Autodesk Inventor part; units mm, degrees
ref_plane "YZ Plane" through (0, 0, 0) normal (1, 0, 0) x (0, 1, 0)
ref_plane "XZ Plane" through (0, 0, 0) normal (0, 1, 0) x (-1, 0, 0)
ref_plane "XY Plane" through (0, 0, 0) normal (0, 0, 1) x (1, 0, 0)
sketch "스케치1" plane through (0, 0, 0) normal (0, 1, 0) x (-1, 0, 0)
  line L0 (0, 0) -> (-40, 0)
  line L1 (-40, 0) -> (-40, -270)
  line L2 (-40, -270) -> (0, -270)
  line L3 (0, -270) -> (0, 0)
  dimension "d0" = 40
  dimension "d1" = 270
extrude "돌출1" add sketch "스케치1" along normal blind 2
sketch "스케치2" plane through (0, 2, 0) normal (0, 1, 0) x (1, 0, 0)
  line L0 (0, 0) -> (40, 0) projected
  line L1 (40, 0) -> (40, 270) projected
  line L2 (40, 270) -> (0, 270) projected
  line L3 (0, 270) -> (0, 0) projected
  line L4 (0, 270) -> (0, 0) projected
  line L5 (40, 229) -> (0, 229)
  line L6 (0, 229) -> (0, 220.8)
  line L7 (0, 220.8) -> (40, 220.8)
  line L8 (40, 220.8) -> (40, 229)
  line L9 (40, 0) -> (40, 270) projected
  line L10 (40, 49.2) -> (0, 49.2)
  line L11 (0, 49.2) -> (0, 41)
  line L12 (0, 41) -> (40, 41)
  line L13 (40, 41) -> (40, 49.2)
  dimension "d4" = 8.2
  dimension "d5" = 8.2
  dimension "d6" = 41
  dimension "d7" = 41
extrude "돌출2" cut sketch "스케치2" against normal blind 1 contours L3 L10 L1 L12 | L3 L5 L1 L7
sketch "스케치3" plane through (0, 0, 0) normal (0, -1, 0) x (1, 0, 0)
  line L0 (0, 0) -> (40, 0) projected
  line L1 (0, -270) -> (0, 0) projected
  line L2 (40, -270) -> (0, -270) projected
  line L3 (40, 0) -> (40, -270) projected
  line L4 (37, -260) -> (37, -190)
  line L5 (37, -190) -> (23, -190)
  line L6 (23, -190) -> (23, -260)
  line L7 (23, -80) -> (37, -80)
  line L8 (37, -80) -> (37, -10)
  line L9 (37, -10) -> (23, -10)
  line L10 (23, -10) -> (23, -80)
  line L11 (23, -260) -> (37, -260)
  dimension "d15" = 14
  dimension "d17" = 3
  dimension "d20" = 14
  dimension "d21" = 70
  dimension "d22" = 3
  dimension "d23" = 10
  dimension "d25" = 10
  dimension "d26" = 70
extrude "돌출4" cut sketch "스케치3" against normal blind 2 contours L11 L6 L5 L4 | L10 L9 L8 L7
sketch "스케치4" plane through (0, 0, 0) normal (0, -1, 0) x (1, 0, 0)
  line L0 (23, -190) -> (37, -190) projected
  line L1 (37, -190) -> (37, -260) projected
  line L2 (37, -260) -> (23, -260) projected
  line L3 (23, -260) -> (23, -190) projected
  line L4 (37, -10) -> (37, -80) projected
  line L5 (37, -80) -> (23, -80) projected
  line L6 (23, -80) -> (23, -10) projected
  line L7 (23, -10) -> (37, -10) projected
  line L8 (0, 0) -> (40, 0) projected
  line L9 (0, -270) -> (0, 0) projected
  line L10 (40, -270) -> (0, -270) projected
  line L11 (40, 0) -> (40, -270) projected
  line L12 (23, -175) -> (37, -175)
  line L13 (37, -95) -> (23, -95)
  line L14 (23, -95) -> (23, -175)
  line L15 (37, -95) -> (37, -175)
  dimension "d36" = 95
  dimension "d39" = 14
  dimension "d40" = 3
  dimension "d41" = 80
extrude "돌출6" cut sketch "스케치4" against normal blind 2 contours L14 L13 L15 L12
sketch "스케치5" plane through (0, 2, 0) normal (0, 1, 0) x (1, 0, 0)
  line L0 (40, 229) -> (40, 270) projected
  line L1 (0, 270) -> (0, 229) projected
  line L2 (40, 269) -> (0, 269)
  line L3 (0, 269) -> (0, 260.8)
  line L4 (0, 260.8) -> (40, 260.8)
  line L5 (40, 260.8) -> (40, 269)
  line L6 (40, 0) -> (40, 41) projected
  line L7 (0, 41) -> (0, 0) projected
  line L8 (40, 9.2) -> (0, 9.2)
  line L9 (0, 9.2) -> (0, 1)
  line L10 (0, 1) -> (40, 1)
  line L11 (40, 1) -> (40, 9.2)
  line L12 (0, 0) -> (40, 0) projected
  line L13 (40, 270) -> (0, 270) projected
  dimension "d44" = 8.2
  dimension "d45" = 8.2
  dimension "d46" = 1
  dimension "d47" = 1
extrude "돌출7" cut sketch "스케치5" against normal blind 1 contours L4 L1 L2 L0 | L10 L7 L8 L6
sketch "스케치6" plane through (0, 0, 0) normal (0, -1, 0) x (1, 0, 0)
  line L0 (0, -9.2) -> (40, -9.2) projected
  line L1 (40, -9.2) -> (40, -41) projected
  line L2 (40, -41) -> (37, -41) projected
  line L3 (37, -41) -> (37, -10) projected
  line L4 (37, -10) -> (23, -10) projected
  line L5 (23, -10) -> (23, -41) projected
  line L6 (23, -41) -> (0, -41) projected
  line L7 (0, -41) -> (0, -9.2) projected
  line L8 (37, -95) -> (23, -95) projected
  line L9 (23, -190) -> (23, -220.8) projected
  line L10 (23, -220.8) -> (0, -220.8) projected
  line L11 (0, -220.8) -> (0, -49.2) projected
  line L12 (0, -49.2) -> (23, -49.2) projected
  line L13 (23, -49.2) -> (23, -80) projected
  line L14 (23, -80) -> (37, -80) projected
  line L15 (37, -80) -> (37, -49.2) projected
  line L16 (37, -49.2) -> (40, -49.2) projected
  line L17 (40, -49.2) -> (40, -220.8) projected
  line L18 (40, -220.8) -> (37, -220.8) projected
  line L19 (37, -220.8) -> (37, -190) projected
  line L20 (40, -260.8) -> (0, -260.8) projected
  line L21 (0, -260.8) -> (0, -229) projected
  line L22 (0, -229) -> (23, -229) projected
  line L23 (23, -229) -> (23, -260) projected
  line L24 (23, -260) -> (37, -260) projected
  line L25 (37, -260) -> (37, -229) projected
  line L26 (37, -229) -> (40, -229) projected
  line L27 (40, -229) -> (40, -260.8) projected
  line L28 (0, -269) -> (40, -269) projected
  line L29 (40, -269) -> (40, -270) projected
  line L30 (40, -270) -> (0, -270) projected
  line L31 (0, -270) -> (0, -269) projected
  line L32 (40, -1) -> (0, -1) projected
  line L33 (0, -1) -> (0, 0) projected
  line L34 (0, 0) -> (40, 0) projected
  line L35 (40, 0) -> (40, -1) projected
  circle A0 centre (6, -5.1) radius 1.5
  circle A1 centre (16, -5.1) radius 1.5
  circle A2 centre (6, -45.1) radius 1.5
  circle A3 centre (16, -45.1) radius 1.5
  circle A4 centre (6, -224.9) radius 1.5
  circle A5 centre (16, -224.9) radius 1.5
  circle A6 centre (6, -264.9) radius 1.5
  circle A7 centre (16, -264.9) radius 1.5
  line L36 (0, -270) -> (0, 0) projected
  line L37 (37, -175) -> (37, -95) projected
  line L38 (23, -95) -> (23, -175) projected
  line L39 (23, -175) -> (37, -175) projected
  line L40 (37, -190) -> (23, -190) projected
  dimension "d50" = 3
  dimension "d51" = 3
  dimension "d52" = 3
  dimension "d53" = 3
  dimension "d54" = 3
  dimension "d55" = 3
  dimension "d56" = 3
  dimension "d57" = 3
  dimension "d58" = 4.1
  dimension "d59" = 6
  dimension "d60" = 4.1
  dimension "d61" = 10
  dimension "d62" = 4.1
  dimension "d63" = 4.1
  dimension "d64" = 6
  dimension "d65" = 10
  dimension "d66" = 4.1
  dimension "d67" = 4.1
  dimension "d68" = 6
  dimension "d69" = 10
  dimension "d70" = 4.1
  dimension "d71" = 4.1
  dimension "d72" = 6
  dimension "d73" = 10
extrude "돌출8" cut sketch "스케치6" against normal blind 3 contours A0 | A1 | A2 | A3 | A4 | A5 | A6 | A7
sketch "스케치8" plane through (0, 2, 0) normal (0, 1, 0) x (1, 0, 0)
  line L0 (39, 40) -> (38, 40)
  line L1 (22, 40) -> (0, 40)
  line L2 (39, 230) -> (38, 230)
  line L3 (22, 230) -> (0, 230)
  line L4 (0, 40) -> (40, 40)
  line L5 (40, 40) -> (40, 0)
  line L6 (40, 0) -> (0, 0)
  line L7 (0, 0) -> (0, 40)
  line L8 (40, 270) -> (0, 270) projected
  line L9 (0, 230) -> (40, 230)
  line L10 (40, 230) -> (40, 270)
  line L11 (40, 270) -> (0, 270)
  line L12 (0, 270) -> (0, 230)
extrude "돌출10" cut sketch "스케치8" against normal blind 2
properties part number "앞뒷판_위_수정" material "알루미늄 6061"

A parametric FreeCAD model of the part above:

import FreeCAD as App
import Part
import Sketcher

V = App.Vector
Q = App.Units.Quantity

doc = App.newDocument("Part")
body = doc.addObject("PartDesign::Body", "Body")

# Sketch on XZ plane
sketch1 = body.newObject("Sketcher::SketchObject", "Sketch")
sketch1.AttachmentSupport = (doc.getObject("XZ_Plane"), [""])
sketch1.MapMode = "FlatFace"
sketch1.addGeometry([
    Part.LineSegment(V(0, -270, 0), V(0, 0, 0)),
    Part.LineSegment(V(0, 0, 0), V(40, 0, 0)),
    Part.LineSegment(V(40, 0, 0), V(40, -270, 0)),
    Part.LineSegment(V(40, -270, 0), V(0, -270, 0)),
], False)
sketch1.addConstraint([
    Sketcher.Constraint("Coincident", 0, 2, 1, 1),
    Sketcher.Constraint("Coincident", 1, 2, 2, 1),
    Sketcher.Constraint("Coincident", 2, 2, 3, 1),
    Sketcher.Constraint("Coincident", 3, 2, 0, 1),
    Sketcher.Constraint("Vertical", 0),
    Sketcher.Constraint("Horizontal", 1),
    Sketcher.Constraint("Vertical", 2),
    Sketcher.Constraint("Horizontal", 3),
    Sketcher.Constraint("Coincident", 0, 2, -1, 1),
    Sketcher.Constraint("DistanceX", 1, 1, 1, 2, Q("40 mm")),
    Sketcher.Constraint("DistanceY", 0, 1, 0, 2, Q("270 mm")),
])
pad1 = body.newObject("PartDesign::Pad", "Pad")
pad1.Profile = sketch1
pad1.Length = 2
pad1.Reversed = True

# Sketch on XZ plane
sketch2 = body.newObject("Sketcher::SketchObject", "Sketch001")
sketch2.AttachmentSupport = (doc.getObject("XZ_Plane"), [""])
sketch2.MapMode = "FlatFace"
sketch2.AttachmentOffset = App.Placement(V(0, 0, -2), App.Rotation())
sketch2.addGeometry([
    Part.LineSegment(V(0, -49.2, 0), V(0, -41, 0)),  # 0
    Part.LineSegment(V(0, -41, 0), V(40, -41, 0)),  # 1
    Part.LineSegment(V(40, -41, 0), V(40, -49.2, 0)),  # 2
    Part.LineSegment(V(40, -49.2, 0), V(0, -49.2, 0)),  # 3
    Part.LineSegment(V(0, -229, 0), V(0, -220.8, 0)),  # 4
    Part.LineSegment(V(0, -220.8, 0), V(40, -220.8, 0)),  # 5
    Part.LineSegment(V(40, -220.8, 0), V(40, -229, 0)),  # 6
    Part.LineSegment(V(40, -229, 0), V(0, -229, 0)),  # 7
], False)
sketch2.addConstraint([
    Sketcher.Constraint("Coincident", 0, 2, 1, 1),
    Sketcher.Constraint("Coincident", 1, 2, 2, 1),
    Sketcher.Constraint("Coincident", 2, 2, 3, 1),
    Sketcher.Constraint("Coincident", 3, 2, 0, 1),
    Sketcher.Constraint("Coincident", 4, 2, 5, 1),
    Sketcher.Constraint("Coincident", 5, 2, 6, 1),
    Sketcher.Constraint("Coincident", 6, 2, 7, 1),
    Sketcher.Constraint("Coincident", 7, 2, 4, 1),
    Sketcher.Constraint("Vertical", 0),
    Sketcher.Constraint("Horizontal", 1),
    Sketcher.Constraint("Vertical", 2),
    Sketcher.Constraint("Horizontal", 3),
    Sketcher.Constraint("Vertical", 4),
    Sketcher.Constraint("Horizontal", 5),
    Sketcher.Constraint("Vertical", 6),
    Sketcher.Constraint("Horizontal", 7),
    Sketcher.Constraint("PointOnObject", 0, 2, -2),
    Sketcher.Constraint("PointOnObject", 4, 2, -2),
    Sketcher.Constraint("Vertical", 2, 2, 5, 2),
    Sketcher.Constraint("Equal", 2, 4),
    Sketcher.Constraint("DistanceY", 0, 1, 0, 2, Q("8.2 mm")),
    Sketcher.Constraint("DistanceY", 0, 2, -1, 1, Q("41 mm")),
    Sketcher.Constraint("DistanceX", 1, 1, 1, 2, Q("40 mm")),
    Sketcher.Constraint("DistanceY", 6, 2, -1, 1, Q("229 mm")),
])
pocket1 = body.newObject("PartDesign::Pocket", "Pocket")
pocket1.Profile = sketch2
pocket1.Length = 1
pocket1.Reversed = True

# Sketch on XZ plane
sketch3 = body.newObject("Sketcher::SketchObject", "Sketch002")
sketch3.AttachmentSupport = (doc.getObject("XZ_Plane"), [""])
sketch3.MapMode = "FlatFace"
sketch3.addGeometry([
    Part.LineSegment(V(23, -260, 0), V(37, -260, 0)),  # 0
    Part.LineSegment(V(37, -260, 0), V(37, -190, 0)),  # 1
    Part.LineSegment(V(37, -190, 0), V(23, -190, 0)),  # 2
    Part.LineSegment(V(23, -190, 0), V(23, -260, 0)),  # 3
    Part.LineSegment(V(23, -10, 0), V(23, -80, 0)),  # 4
    Part.LineSegment(V(23, -80, 0), V(37, -80, 0)),  # 5
    Part.LineSegment(V(37, -80, 0), V(37, -10, 0)),  # 6
    Part.LineSegment(V(37, -10, 0), V(23, -10, 0)),  # 7
], False)
sketch3.addConstraint([
    Sketcher.Constraint("Coincident", 0, 2, 1, 1),
    Sketcher.Constraint("Coincident", 1, 2, 2, 1),
    Sketcher.Constraint("Coincident", 2, 2, 3, 1),
    Sketcher.Constraint("Coincident", 3, 2, 0, 1),
    Sketcher.Constraint("Coincident", 4, 2, 5, 1),
    Sketcher.Constraint("Coincident", 5, 2, 6, 1),
    Sketcher.Constraint("Coincident", 6, 2, 7, 1),
    Sketcher.Constraint("Coincident", 7, 2, 4, 1),
    Sketcher.Constraint("Horizontal", 0),
    Sketcher.Constraint("Vertical", 1),
    Sketcher.Constraint("Horizontal", 2),
    Sketcher.Constraint("Vertical", 3),
    Sketcher.Constraint("Vertical", 4),
    Sketcher.Constraint("Horizontal", 5),
    Sketcher.Constraint("Vertical", 6),
    Sketcher.Constraint("Horizontal", 7),
    Sketcher.Constraint("Vertical", 3, 2, 4, 2),
    Sketcher.Constraint("Vertical", 1, 2, 5, 2),
    Sketcher.Constraint("Equal", 3, 4),
    Sketcher.Constraint("DistanceX", 0, 1, 0, 2, Q("14 mm")),
    Sketcher.Constraint("DistanceY", 1, 1, 1, 2, Q("70 mm")),
    Sketcher.Constraint("DistanceY", 6, 2, -1, 1, Q("10 mm")),
    Sketcher.Constraint("DistanceX", -1, 1, 0, 2, Q("37 mm")),
    Sketcher.Constraint("DistanceY", 0, 2, -1, 1, Q("260 mm")),
])
pocket2 = body.newObject("PartDesign::Pocket", "Pocket001")
pocket2.Profile = sketch3
pocket2.Length = 2

# Sketch on XZ plane
sketch4 = body.newObject("Sketcher::SketchObject", "Sketch003")
sketch4.AttachmentSupport = (doc.getObject("XZ_Plane"), [""])
sketch4.MapMode = "FlatFace"
sketch4.addGeometry([
    Part.LineSegment(V(23, -95, 0), V(23, -175, 0)),
    Part.LineSegment(V(23, -175, 0), V(37, -175, 0)),
    Part.LineSegment(V(37, -175, 0), V(37, -95, 0)),
    Part.LineSegment(V(37, -95, 0), V(23, -95, 0)),
], False)
sketch4.addConstraint([
    Sketcher.Constraint("Coincident", 0, 2, 1, 1),
    Sketcher.Constraint("Coincident", 1, 2, 2, 1),
    Sketcher.Constraint("Coincident", 2, 2, 3, 1),
    Sketcher.Constraint("Coincident", 3, 2, 0, 1),
    Sketcher.Constraint("Vertical", 0),
    Sketcher.Constraint("Horizontal", 1),
    Sketcher.Constraint("Vertical", 2),
    Sketcher.Constraint("Horizontal", 3),
    Sketcher.Constraint("DistanceX", 1, 1, 1, 2, Q("14 mm")),
    Sketcher.Constraint("DistanceY", 0, 2, 0, 1, Q("80 mm")),
    Sketcher.Constraint("DistanceY", 2, 2, -1, 1, Q("95 mm")),
    Sketcher.Constraint("DistanceX", -1, 1, 0, 2, Q("23 mm")),
])
pocket3 = body.newObject("PartDesign::Pocket", "Pocket002")
pocket3.Profile = sketch4
pocket3.Length = 2

# Sketch on XZ plane
sketch5 = body.newObject("Sketcher::SketchObject", "Sketch004")
sketch5.AttachmentSupport = (doc.getObject("XZ_Plane"), [""])
sketch5.MapMode = "FlatFace"
sketch5.AttachmentOffset = App.Placement(V(0, 0, -2), App.Rotation())
sketch5.addGeometry([
    Part.LineSegment(V(0, -260.8, 0), V(40, -260.8, 0)),  # 0
    Part.LineSegment(V(40, -260.8, 0), V(40, -269, 0)),  # 1
    Part.LineSegment(V(40, -269, 0), V(0, -269, 0)),  # 2
    Part.LineSegment(V(0, -269, 0), V(0, -260.8, 0)),  # 3
    Part.LineSegment(V(0, -1, 0), V(40, -1, 0)),  # 4
    Part.LineSegment(V(40, -1, 0), V(40, -9.2, 0)),  # 5
    Part.LineSegment(V(40, -9.2, 0), V(0, -9.2, 0)),  # 6
    Part.LineSegment(V(0, -9.2, 0), V(0, -1, 0)),  # 7
], False)
sketch5.addConstraint([
    Sketcher.Constraint("Coincident", 0, 2, 1, 1),
    Sketcher.Constraint("Coincident", 1, 2, 2, 1),
    Sketcher.Constraint("Coincident", 2, 2, 3, 1),
    Sketcher.Constraint("Coincident", 3, 2, 0, 1),
    Sketcher.Constraint("Coincident", 4, 2, 5, 1),
    Sketcher.Constraint("Coincident", 5, 2, 6, 1),
    Sketcher.Constraint("Coincident", 6, 2, 7, 1),
    Sketcher.Constraint("Coincident", 7, 2, 4, 1),
    Sketcher.Constraint("Horizontal", 0),
    Sketcher.Constraint("Vertical", 1),
    Sketcher.Constraint("Horizontal", 2),
    Sketcher.Constraint("Vertical", 3),
    Sketcher.Constraint("Horizontal", 4),
    Sketcher.Constraint("Vertical", 5),
    Sketcher.Constraint("Horizontal", 6),
    Sketcher.Constraint("Vertical", 7),
    Sketcher.Constraint("PointOnObject", 2, 2, -2),
    Sketcher.Constraint("PointOnObject", 6, 2, -2),
    Sketcher.Constraint("Vertical", 1, 2, 4, 2),
    Sketcher.Constraint("Equal", 3, 5),
    Sketcher.Constraint("DistanceY", 1, 2, 1, 1, Q("8.2 mm")),
    Sketcher.Constraint("DistanceY", 4, 2, -1, 1, Q("1 mm")),
    Sketcher.Constraint("DistanceX", 0, 1, 0, 2, Q("40 mm")),
    Sketcher.Constraint("DistanceY", 1, 2, -1, 1, Q("269 mm")),
])
pocket4 = body.newObject("PartDesign::Pocket", "Pocket003")
pocket4.Profile = sketch5
pocket4.Length = 1
pocket4.Reversed = True

# Sketch on XZ plane
sketch6 = body.newObject("Sketcher::SketchObject", "Sketch005")
sketch6.AttachmentSupport = (doc.getObject("XZ_Plane"), [""])
sketch6.MapMode = "FlatFace"
sketch6.addGeometry([
    Part.Circle(V(6, -5.1, 0), V(0, 0, 1), 1.5),  # 0
    Part.Circle(V(16, -5.1, 0), V(0, 0, 1), 1.5),  # 1
    Part.Circle(V(6, -45.1, 0), V(0, 0, 1), 1.5),  # 2
    Part.Circle(V(16, -45.1, 0), V(0, 0, 1), 1.5),  # 3
    Part.Circle(V(6, -224.9, 0), V(0, 0, 1), 1.5),  # 4
    Part.Circle(V(16, -224.9, 0), V(0, 0, 1), 1.5),  # 5
    Part.Circle(V(6, -264.9, 0), V(0, 0, 1), 1.5),  # 6
    Part.Circle(V(16, -264.9, 0), V(0, 0, 1), 1.5),  # 7
], False)
sketch6.addConstraint([
    Sketcher.Constraint("Equal", 0, 1),
    Sketcher.Constraint("Equal", 1, 2),
    Sketcher.Constraint("Equal", 2, 3),
    Sketcher.Constraint("Equal", 3, 4),
    Sketcher.Constraint("Equal", 4, 5),
    Sketcher.Constraint("Equal", 5, 6),
    Sketcher.Constraint("Equal", 6, 7),
    Sketcher.Constraint("Horizontal", 0, 3, 1, 3),
    Sketcher.Constraint("Horizontal", 2, 3, 3, 3),
    Sketcher.Constraint("Horizontal", 4, 3, 5, 3),
    Sketcher.Constraint("Horizontal", 6, 3, 7, 3),
    Sketcher.Constraint("Vertical", 0, 3, 2, 3),
    Sketcher.Constraint("Vertical", 1, 3, 3, 3),
    Sketcher.Constraint("Vertical", 2, 3, 4, 3),
    Sketcher.Constraint("Vertical", 3, 3, 5, 3),
    Sketcher.Constraint("Vertical", 4, 3, 6, 3),
    Sketcher.Constraint("Vertical", 5, 3, 7, 3),
    Sketcher.Constraint("Diameter", 0, Q("3 mm")),
    Sketcher.Constraint("DistanceX", -1, 1, 0, 3, Q("6 mm")),
    Sketcher.Constraint("DistanceX", 0, 3, 1, 3, Q("10 mm")),
    Sketcher.Constraint("DistanceY", 2, 3, 0, 3, Q("40 mm")),
    Sketcher.Constraint("DistanceY", 6, 3, 4, 3, Q("40 mm")),
    Sketcher.Constraint("DistanceY", 0, 3, -1, 1, Q("5.1 mm")),
    Sketcher.Constraint("DistanceY", 4, 3, -1, 1, Q("224.9 mm")),
])
pocket5 = body.newObject("PartDesign::Pocket", "Pocket004")
pocket5.Profile = sketch6
pocket5.Length = 3

# Sketch on XZ plane
sketch7 = body.newObject("Sketcher::SketchObject", "Sketch006")
sketch7.AttachmentSupport = (doc.getObject("XZ_Plane"), [""])
sketch7.MapMode = "FlatFace"
sketch7.AttachmentOffset = App.Placement(V(0, 0, -2), App.Rotation())
sketch7.addGeometry([
    Part.LineSegment(V(40, -40, 0), V(0, -40, 0)),  # 0
    Part.LineSegment(V(0, -40, 0), V(0, 0, 0)),  # 1
    Part.LineSegment(V(0, 0, 0), V(40, 0, 0)),  # 2
    Part.LineSegment(V(40, 0, 0), V(40, -40, 0)),  # 3
    Part.LineSegment(V(0, -230, 0), V(40, -230, 0)),  # 4
    Part.LineSegment(V(40, -230, 0), V(40, -270, 0)),  # 5
    Part.LineSegment(V(40, -270, 0), V(0, -270, 0)),  # 6
    Part.LineSegment(V(0, -270, 0), V(0, -230, 0)),  # 7
], False)
sketch7.addConstraint([
    Sketcher.Constraint("Coincident", 0, 2, 1, 1),
    Sketcher.Constraint("Coincident", 1, 2, 2, 1),
    Sketcher.Constraint("Coincident", 2, 2, 3, 1),
    Sketcher.Constraint("Coincident", 3, 2, 0, 1),
    Sketcher.Constraint("Coincident", 4, 2, 5, 1),
    Sketcher.Constraint("Coincident", 5, 2, 6, 1),
    Sketcher.Constraint("Coincident", 6, 2, 7, 1),
    Sketcher.Constraint("Coincident", 7, 2, 4, 1),
    Sketcher.Constraint("Horizontal", 0),
    Sketcher.Constraint("Vertical", 1),
    Sketcher.Constraint("Horizontal", 2),
    Sketcher.Constraint("Vertical", 3),
    Sketcher.Constraint("Horizontal", 4),
    Sketcher.Constraint("Vertical", 5),
    Sketcher.Constraint("Horizontal", 6),
    Sketcher.Constraint("Vertical", 7),
    Sketcher.Constraint("Coincident", 1, 2, -1, 1),
    Sketcher.Constraint("PointOnObject", 6, 2, -2),
    Sketcher.Constraint("Vertical", 3, 2, 4, 2),
    Sketcher.Constraint("Equal", 6, 1),
    Sketcher.Constraint("Equal", 3, 5),
    Sketcher.Constraint("DistanceX", 0, 2, 0, 1, Q("40 mm")),
    Sketcher.Constraint("DistanceY", 4, 2, -1, 1, Q("230 mm")),
])
pocket6 = body.newObject("PartDesign::Pocket", "Pocket005")
pocket6.Profile = sketch7
pocket6.Length = 2
pocket6.Reversed = True

doc.recompute()
